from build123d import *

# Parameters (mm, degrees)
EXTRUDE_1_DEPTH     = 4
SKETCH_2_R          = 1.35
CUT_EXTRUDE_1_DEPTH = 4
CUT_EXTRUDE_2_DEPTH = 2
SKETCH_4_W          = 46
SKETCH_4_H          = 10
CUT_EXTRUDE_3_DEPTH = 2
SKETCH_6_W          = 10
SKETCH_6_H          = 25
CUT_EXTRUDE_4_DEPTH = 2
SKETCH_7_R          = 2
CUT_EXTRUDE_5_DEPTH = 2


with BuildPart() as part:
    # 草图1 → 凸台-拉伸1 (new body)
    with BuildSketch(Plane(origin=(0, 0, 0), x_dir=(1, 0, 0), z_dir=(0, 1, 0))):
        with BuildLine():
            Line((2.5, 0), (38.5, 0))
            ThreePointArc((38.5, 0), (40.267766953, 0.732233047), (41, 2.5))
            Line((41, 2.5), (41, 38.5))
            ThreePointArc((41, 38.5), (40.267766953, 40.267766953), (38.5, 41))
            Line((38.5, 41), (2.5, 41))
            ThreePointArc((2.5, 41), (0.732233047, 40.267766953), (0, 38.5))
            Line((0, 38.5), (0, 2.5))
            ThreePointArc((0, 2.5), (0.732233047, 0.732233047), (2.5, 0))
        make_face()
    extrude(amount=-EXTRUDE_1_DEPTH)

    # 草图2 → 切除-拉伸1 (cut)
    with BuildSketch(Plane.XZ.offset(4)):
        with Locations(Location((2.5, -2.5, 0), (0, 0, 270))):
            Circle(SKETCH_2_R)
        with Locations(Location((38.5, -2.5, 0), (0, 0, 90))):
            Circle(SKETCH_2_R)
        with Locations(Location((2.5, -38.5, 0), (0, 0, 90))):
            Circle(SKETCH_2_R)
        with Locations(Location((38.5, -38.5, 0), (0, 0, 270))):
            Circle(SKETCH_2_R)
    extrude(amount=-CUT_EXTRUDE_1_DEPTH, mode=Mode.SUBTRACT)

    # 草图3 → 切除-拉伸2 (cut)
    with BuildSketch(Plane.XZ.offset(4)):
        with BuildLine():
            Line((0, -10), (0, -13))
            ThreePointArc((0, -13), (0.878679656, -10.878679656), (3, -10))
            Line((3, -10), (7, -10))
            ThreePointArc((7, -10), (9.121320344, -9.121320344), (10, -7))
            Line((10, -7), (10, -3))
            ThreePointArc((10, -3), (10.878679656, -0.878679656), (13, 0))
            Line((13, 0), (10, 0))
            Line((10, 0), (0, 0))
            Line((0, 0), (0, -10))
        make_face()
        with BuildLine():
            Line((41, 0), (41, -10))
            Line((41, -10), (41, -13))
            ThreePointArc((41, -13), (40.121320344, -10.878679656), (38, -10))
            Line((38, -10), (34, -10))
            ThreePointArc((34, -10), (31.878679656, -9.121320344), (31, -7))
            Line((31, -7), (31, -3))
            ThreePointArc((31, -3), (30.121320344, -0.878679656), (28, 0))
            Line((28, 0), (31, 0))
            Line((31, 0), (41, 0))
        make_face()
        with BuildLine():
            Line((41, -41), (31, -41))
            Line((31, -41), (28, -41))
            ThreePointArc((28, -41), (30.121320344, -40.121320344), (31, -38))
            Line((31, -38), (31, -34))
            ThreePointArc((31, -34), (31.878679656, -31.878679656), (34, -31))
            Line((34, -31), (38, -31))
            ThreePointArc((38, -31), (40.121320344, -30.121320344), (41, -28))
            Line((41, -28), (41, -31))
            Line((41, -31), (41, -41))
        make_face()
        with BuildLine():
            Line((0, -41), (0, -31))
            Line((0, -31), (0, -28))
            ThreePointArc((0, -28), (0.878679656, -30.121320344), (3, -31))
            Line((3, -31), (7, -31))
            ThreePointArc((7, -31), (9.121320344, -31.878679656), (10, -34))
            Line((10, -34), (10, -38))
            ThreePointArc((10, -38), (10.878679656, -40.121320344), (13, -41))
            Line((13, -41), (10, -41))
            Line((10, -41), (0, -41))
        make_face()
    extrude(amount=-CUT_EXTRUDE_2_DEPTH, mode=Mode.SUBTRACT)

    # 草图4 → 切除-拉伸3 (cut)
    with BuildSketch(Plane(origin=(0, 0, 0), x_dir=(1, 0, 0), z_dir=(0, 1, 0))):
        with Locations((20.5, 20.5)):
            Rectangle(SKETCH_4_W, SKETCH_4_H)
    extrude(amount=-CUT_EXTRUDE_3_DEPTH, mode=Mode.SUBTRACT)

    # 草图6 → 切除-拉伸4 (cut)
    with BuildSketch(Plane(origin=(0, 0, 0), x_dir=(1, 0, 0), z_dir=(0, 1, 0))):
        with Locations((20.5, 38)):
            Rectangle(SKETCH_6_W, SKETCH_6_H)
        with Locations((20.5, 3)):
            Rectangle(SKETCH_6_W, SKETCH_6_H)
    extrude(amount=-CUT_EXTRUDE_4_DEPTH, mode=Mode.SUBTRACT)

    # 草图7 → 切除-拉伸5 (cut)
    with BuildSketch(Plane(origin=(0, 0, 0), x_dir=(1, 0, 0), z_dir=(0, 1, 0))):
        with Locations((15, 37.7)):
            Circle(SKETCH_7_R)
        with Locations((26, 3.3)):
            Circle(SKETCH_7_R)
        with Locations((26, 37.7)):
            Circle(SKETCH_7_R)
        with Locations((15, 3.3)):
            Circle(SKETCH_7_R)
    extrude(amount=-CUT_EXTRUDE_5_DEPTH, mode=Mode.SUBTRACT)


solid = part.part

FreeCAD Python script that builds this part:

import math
import FreeCAD as App
import Part
import Sketcher

V = App.Vector
Q = App.Units.Quantity

doc = App.newDocument("Part")
body = doc.addObject("PartDesign::Body", "Body")

sketch1 = body.newObject("Sketcher::SketchObject", "Sketch")
sketch1.AttachmentSupport = (doc.getObject("XZ_Plane"), [""])
sketch1.MapMode = "FlatFace"
sketch1.addGeometry([
    Part.LineSegment(V(2.5, 0, 0), V(38.5, 0, 0)),
    Part.ArcOfCircle(Part.Circle(V(38.5, -2.5, 0), V(0, 0, 1), 2.5), math.radians(0), math.radians(90)),
    Part.LineSegment(V(41, -2.5, 0), V(41, -38.5, 0)),
    Part.ArcOfCircle(Part.Circle(V(38.5, -38.5, 0), V(0, 0, 1), 2.5), math.radians(-90), math.radians(0)),
    Part.LineSegment(V(38.5, -41, 0), V(2.5, -41, 0)),
    Part.ArcOfCircle(Part.Circle(V(2.5, -38.5, 0), V(0, 0, 1), 2.5), math.radians(180), math.radians(270)),
    Part.LineSegment(V(0, -38.5, 0), V(0, -2.5, 0)),
    Part.ArcOfCircle(Part.Circle(V(2.5, -2.5, 0), V(0, 0, 1), 2.5), math.radians(90), math.radians(180)),
], False)
sketch1.addConstraint([
    Sketcher.Constraint("Tangent", 0, 2, 1, 2),
    Sketcher.Constraint("Tangent", 1, 1, 2, 1),
    Sketcher.Constraint("Tangent", 2, 2, 3, 2),
    Sketcher.Constraint("Tangent", 3, 1, 4, 1),
    Sketcher.Constraint("Tangent", 4, 2, 5, 2),
    Sketcher.Constraint("Tangent", 5, 1, 6, 1),
    Sketcher.Constraint("Tangent", 6, 2, 7, 2),
    Sketcher.Constraint("Tangent", 7, 1, 0, 1),
    Sketcher.Constraint("Horizontal", 0),
    Sketcher.Constraint("Vertical", 2),
    Sketcher.Constraint("Horizontal", 4),
    Sketcher.Constraint("Vertical", 6),
    Sketcher.Constraint("Equal", 1, 3),
    Sketcher.Constraint("Equal", 3, 5),
    Sketcher.Constraint("Equal", 5, 7),
    Sketcher.Constraint("PointOnObject", 0, 2, -1),
    Sketcher.Constraint("PointOnObject", 5, 1, -2),
    Sketcher.Constraint("Equal", 4, 2),
    Sketcher.Constraint("Radius", 1, Q("2.5 mm")),
    Sketcher.Constraint("DistanceX", 0, 1, 0, 2, Q("36 mm")),
])
pad1 = body.newObject("PartDesign::Pad", "Pad")
pad1.Profile = sketch1
pad1.Length = 4

sketch2 = body.newObject("Sketcher::SketchObject", "Sketch001")
sketch2.AttachmentSupport = (doc.getObject("XZ_Plane"), [""])
sketch2.MapMode = "FlatFace"
sketch2.AttachmentOffset = App.Placement(V(0, 0, 4), App.Rotation())
sketch2.addGeometry([
    Part.Circle(V(2.5, -2.5, 0), V(0, 0, 1), 1.4),
    Part.Circle(V(38.5, -2.5, 0), V(0, 0, 1), 1.4),
    Part.Circle(V(2.5, -38.5, 0), V(0, 0, 1), 1.4),
    Part.Circle(V(38.5, -38.5, 0), V(0, 0, 1), 1.4),
], False)
sketch2.addConstraint([
    Sketcher.Constraint("Equal", 0, 1),
    Sketcher.Constraint("Equal", 1, 2),
    Sketcher.Constraint("Equal", 2, 3),
    Sketcher.Constraint("Horizontal", 0, 3, 1, 3),
    Sketcher.Constraint("Horizontal", 2, 3, 3, 3),
    Sketcher.Constraint("Vertical", 0, 3, 2, 3),
    Sketcher.Constraint("Vertical", 1, 3, 3, 3),
    Sketcher.Constraint("Diameter", 0, Q("2.7 mm")),
    Sketcher.Constraint("DistanceX", 0, 3, 1, 3, Q("36 mm")),
    Sketcher.Constraint("DistanceY", 2, 3, 0, 3, Q("36 mm")),
    Sketcher.Constraint("DistanceX", -1, 1, 0, 3, Q("2.5 mm")),
    Sketcher.Constraint("DistanceY", 0, 3, -1, 1, Q("2.5 mm")),
])
pocket1 = body.newObject("PartDesign::Pocket", "Pocket")
pocket1.Profile = sketch2
pocket1.Length = 4

sketch3 = body.newObject("Sketcher::SketchObject", "Sketch002")
sketch3.AttachmentSupport = (doc.getObject("XZ_Plane"), [""])
sketch3.MapMode = "FlatFace"
sketch3.AttachmentOffset = App.Placement(V(0, 0, 4), App.Rotation())
sketch3.addGeometry([
    Part.ArcOfCircle(Part.Circle(V(3, -13, 0), V(0, 0, 1), 3), math.radians(90), math.radians(180)),
    Part.LineSegment(V(3, -10, 0), V(7, -10, 0)),
    Part.ArcOfCircle(Part.Circle(V(7, -7, 0), V(0, 0, 1), 3), math.radians(-90), math.radians(0)),
    Part.LineSegment(V(10, -7, 0), V(10, -3, 0)),
    Part.ArcOfCircle(Part.Circle(V(13, -3, 0), V(0, 0, 1), 3), math.radians(90), math.radians(180)),
    Part.LineSegment(V(13, 0, 0), V(0, 0, 0)),
    Part.LineSegment(V(0, 0, 0), V(0, -13, 0)),
    Part.LineSegment(V(41, -13, 0), V(41, 0, 0)),
    Part.LineSegment(V(41, 0, 0), V(28, 0, 0)),
    Part.ArcOfCircle(Part.Circle(V(28, -3, 0), V(0, 0, 1), 3), math.radians(0), math.radians(90)),
    Part.LineSegment(V(31, -3, 0), V(31, -7, 0)),
    Part.ArcOfCircle(Part.Circle(V(34, -7, 0), V(0, 0, 1), 3), math.radians(180), math.radians(270)),
    Part.LineSegment(V(34, -10, 0), V(38, -10, 0)),
    Part.ArcOfCircle(Part.Circle(V(38, -13, 0), V(0, 0, 1), 3), math.radians(0), math.radians(90)),
    Part.LineSegment(V(28, -41, 0), V(41, -41, 0)),
    Part.LineSegment(V(41, -41, 0), V(41, -28, 0)),
    Part.ArcOfCircle(Part.Circle(V(38, -28, 0), V(0, 0, 1), 3), math.radians(-90), math.radians(0)),
    Part.LineSegment(V(38, -31, 0), V(34, -31, 0)),
    Part.ArcOfCircle(Part.Circle(V(34, -34, 0), V(0, 0, 1), 3), math.radians(90), math.radians(180)),
    Part.LineSegment(V(31, -34, 0), V(31, -38, 0)),
    Part.ArcOfCircle(Part.Circle(V(28, -38, 0), V(0, 0, 1), 3), math.radians(-90), math.radians(0)),
    Part.LineSegment(V(0, -28, 0), V(0, -41, 0)),
    Part.LineSegment(V(0, -41, 0), V(13, -41, 0)),
    Part.ArcOfCircle(Part.Circle(V(13, -38, 0), V(0, 0, 1), 3), math.radians(180), math.radians(270)),
    Part.LineSegment(V(10, -38, 0), V(10, -34, 0)),
    Part.ArcOfCircle(Part.Circle(V(7, -34, 0), V(0, 0, 1), 3), math.radians(0), math.radians(90)),
    Part.LineSegment(V(7, -31, 0), V(3, -31, 0)),
    Part.ArcOfCircle(Part.Circle(V(3, -28, 0), V(0, 0, 1), 3), math.radians(180), math.radians(270)),
], False)
sketch3.addConstraint([
    Sketcher.Constraint("Tangent", 0, 1, 1, 1),
    Sketcher.Constraint("Tangent", 1, 2, 2, 1),
    Sketcher.Constraint("Tangent", 2, 2, 3, 1),
    Sketcher.Constraint("Tangent", 3, 2, 4, 2),
    Sketcher.Constraint("Tangent", 4, 1, 5, 1),
    Sketcher.Constraint("Coincident", 5, 2, 6, 1),
    Sketcher.Constraint("Tangent", 6, 2, 0, 2),
    Sketcher.Constraint("Coincident", 7, 2, 8, 1),
    Sketcher.Constraint("Tangent", 8, 2, 9, 2),
    Sketcher.Constraint("Tangent", 9, 1, 10, 1),
    Sketcher.Constraint("Tangent", 10, 2, 11, 1),
    Sketcher.Constraint("Tangent", 11, 2, 12, 1),
    Sketcher.Constraint("Tangent", 12, 2, 13, 2),
    Sketcher.Constraint("Tangent", 13, 1, 7, 1),
    Sketcher.Constraint("Coincident", 14, 2, 15, 1),
    Sketcher.Constraint("Tangent", 15, 2, 16, 2),
    Sketcher.Constraint("Tangent", 16, 1, 17, 1),
    Sketcher.Constraint("Tangent", 17, 2, 18, 1),
    Sketcher.Constraint("Tangent", 18, 2, 19, 1),
    Sketcher.Constraint("Tangent", 19, 2, 20, 2),
    Sketcher.Constraint("Tangent", 20, 1, 14, 1),
    Sketcher.Constraint("Coincident", 21, 2, 22, 1),
    Sketcher.Constraint("Tangent", 22, 2, 23, 2),
    Sketcher.Constraint("Tangent", 23, 1, 24, 1),
    Sketcher.Constraint("Tangent", 24, 2, 25, 1),
    Sketcher.Constraint("Tangent", 25, 2, 26, 1),
    Sketcher.Constraint("Tangent", 26, 2, 27, 2),
    Sketcher.Constraint("Tangent", 27, 1, 21, 1),
    Sketcher.Constraint("Horizontal", 1),
    Sketcher.Constraint("Vertical", 3),
    Sketcher.Constraint("Horizontal", 5),
    Sketcher.Constraint("Vertical", 6),
    Sketcher.Constraint("Vertical", 7),
    Sketcher.Constraint("Horizontal", 8),
    Sketcher.Constraint("Vertical", 10),
    Sketcher.Constraint("Horizontal", 12),
    Sketcher.Constraint("Horizontal", 14),
    Sketcher.Constraint("Vertical", 15),
    Sketcher.Constraint("Horizontal", 17),
    Sketcher.Constraint("Vertical", 19),
    Sketcher.Constraint("Vertical", 21),
    Sketcher.Constraint("Horizontal", 22),
    Sketcher.Constraint("Vertical", 24),
    Sketcher.Constraint("Horizontal", 26),
    Sketcher.Constraint("Coincident", 5, 2, -1, 1),
    Sketcher.Constraint("Equal", 0, 2),
    Sketcher.Constraint("Equal", 2, 4),
    Sketcher.Constraint("Equal", 4, 9),
    Sketcher.Constraint("Equal", 9, 11),
    Sketcher.Constraint("Equal", 11, 13),
    Sketcher.Constraint("Equal", 13, 16),
    Sketcher.Constraint("Equal", 16, 18),
    Sketcher.Constraint("Equal", 18, 20),
    Sketcher.Constraint("Equal", 20, 23),
    Sketcher.Constraint("Equal", 23, 25),
    Sketcher.Constraint("Equal", 25, 27),
    Sketcher.Constraint("PointOnObject", 7, 2, -1),
    Sketcher.Constraint("PointOnObject", 21, 2, -2),
    Sketcher.Constraint("Horizontal", 2, 3, 11, 3),
    Sketcher.Constraint("Horizontal", 20, 3, 23, 3),
    Sketcher.Constraint("Horizontal", 18, 3, 25, 3),
    Sketcher.Constraint("Vertical", 13, 3, 16, 3),
    Sketcher.Constraint("Vertical", 11, 3, 18, 3),
    Sketcher.Constraint("Vertical", 4, 3, 23, 3),
    Sketcher.Constraint("Equal", 5, 8),
    Sketcher.Constraint("Equal", 26, 3),
    Sketcher.Constraint("Equal", 7, 15),
    Sketcher.Constraint("Radius", 0, Q("3 mm")),
    Sketcher.Constraint("DistanceX", 1, 1, 1, 2, Q("4 mm")),
    Sketcher.Constraint("DistanceX", -1, 1, 9, 3, Q("28 mm")),
    Sketcher.Constraint("DistanceY", 16, 3, -1, 1, Q("28 mm")),
])
pocket2 = body.newObject("PartDesign::Pocket", "Pocket001")
pocket2.Profile = sketch3
pocket2.Length = 2

sketch4 = body.newObject("Sketcher::SketchObject", "Sketch003")
sketch4.AttachmentSupport = (doc.getObject("XZ_Plane"), [""])
sketch4.MapMode = "FlatFace"
sketch4.addGeometry([
    Part.LineSegment(V(-2, -26, 0), V(-2, -16, 0)),
    Part.LineSegment(V(-2, -16, 0), V(44, -16, 0)),
    Part.LineSegment(V(44, -16, 0), V(44, -26, 0)),
    Part.LineSegment(V(44, -26, 0), V(-2, -26, 0)),
], False)
sketch4.addConstraint([
    Sketcher.Constraint("Coincident", 0, 2, 1, 1),
    Sketcher.Constraint("Coincident", 1, 2, 2, 1),
    Sketcher.Constraint("Coincident", 2, 2, 3, 1),
    Sketcher.Constraint("Coincident", 3, 2, 0, 1),
    Sketcher.Constraint("Vertical", 0),
    Sketcher.Constraint("Horizontal", 1),
    Sketcher.Constraint("Vertical", 2),
    Sketcher.Constraint("Horizontal", 3),
    Sketcher.Constraint("DistanceX", 1, 1, 1, 2, Q("46 mm")),
    Sketcher.Constraint("DistanceY", 0, 1, 0, 2, Q("10 mm")),
    Sketcher.Constraint("DistanceX", 0, 2, -1, 1, Q("2.5 mm")),
    Sketcher.Constraint("DistanceY", 0, 2, -1, 1, Q("15.5 mm")),
])
pocket3 = body.newObject("PartDesign::Pocket", "Pocket002")
pocket3.Profile = sketch4
pocket3.Length = 2
pocket3.Reversed = True

sketch5 = body.newObject("Sketcher::SketchObject", "Sketch004")
sketch5.AttachmentSupport = (doc.getObject("XZ_Plane"), [""])
sketch5.MapMode = "FlatFace"
sketch5.addGeometry([
    Part.LineSegment(V(16, -50, 0), V(16, -26, 0)),
    Part.LineSegment(V(16, -26, 0), V(26, -26, 0)),
    Part.LineSegment(V(26, -26, 0), V(26, -50, 0)),
    Part.LineSegment(V(26, -50, 0), V(16, -50, 0)),
    Part.LineSegment(V(16, -16, 0), V(16, 10, 0)),
    Part.LineSegment(V(16, 10, 0), V(26, 10, 0)),
    Part.LineSegment(V(26, 10, 0), V(26, -16, 0)),
    Part.LineSegment(V(26, -16, 0), V(16, -16, 0)),
], False)
sketch5.addConstraint([
    Sketcher.Constraint("Coincident", 0, 2, 1, 1),
    Sketcher.Constraint("Coincident", 1, 2, 2, 1),
    Sketcher.Constraint("Coincident", 2, 2, 3, 1),
    Sketcher.Constraint("Coincident", 3, 2, 0, 1),
    Sketcher.Constraint("Coincident", 4, 2, 5, 1),
    Sketcher.Constraint("Coincident", 5, 2, 6, 1),
    Sketcher.Constraint("Coincident", 6, 2, 7, 1),
    Sketcher.Constraint("Coincident", 7, 2, 4, 1),
    Sketcher.Constraint("Vertical", 0),
    Sketcher.Constraint("Horizontal", 1),
    Sketcher.Constraint("Vertical", 2),
    Sketcher.Constraint("Horizontal", 3),
    Sketcher.Constraint("Vertical", 4),
    Sketcher.Constraint("Horizontal", 5),
    Sketcher.Constraint("Vertical", 6),
    Sketcher.Constraint("Horizontal", 7),
    Sketcher.Constraint("Vertical", 3, 2, 4, 2),
    Sketcher.Constraint("Vertical", 2, 2, 5, 2),
    Sketcher.Constraint("Equal", 2, 4),
    Sketcher.Constraint("DistanceX", 1, 1, 1, 2, Q("10 mm")),
    Sketcher.Constraint("DistanceY", 0, 1, 0, 2, Q("25 mm")),
    Sketcher.Constraint("DistanceY", 0, 2, 4, 2, Q("35 mm")),
    Sketcher.Constraint("DistanceX", -1, 1, 0, 2, Q("15.5 mm")),
    Sketcher.Constraint("DistanceY", 0, 2, -1, 1, Q("25.5 mm")),
])
pocket4 = body.newObject("PartDesign::Pocket", "Pocket003")
pocket4.Profile = sketch5
pocket4.Length = 2
pocket4.Reversed = True

sketch6 = body.newObject("Sketcher::SketchObject", "Sketch005")
sketch6.AttachmentSupport = (doc.getObject("XZ_Plane"), [""])
sketch6.MapMode = "FlatFace"
sketch6.addGeometry([
    Part.Circle(V(15, -37.7, 0), V(0, 0, 1), 2),
    Part.Circle(V(26, -3.3, 0), V(0, 0, 1), 2),
    Part.Circle(V(26, -37.7, 0), V(0, 0, 1), 2),
    Part.Circle(V(15, -3.3, 0), V(0, 0, 1), 2),
], False)
sketch6.addConstraint([
    Sketcher.Constraint("Equal", 0, 1),
    Sketcher.Constraint("Equal", 1, 2),
    Sketcher.Constraint("Equal", 2, 3),
    Sketcher.Constraint("Horizontal", 0, 3, 2, 3),
    Sketcher.Constraint("Horizontal", 1, 3, 3, 3),
    Sketcher.Constraint("Vertical", 1, 3, 2, 3),
    Sketcher.Constraint("Vertical", 0, 3, 3, 3),
    Sketcher.Constraint("Diameter", 0, Q("4 mm")),
    Sketcher.Constraint("DistanceX", -1, 1, 0, 3, Q("15 mm")),
    Sketcher.Constraint("DistanceX", -1, 1, 1, 3, Q("26 mm")),
    Sketcher.Constraint("DistanceY", 0, 3, -1, 1, Q("37.7 mm")),
    Sketcher.Constraint("DistanceY", 1, 3, -1, 1, Q("3.3 mm")),
])
pocket5 = body.newObject("PartDesign::Pocket", "Pocket004")
pocket5.Profile = sketch6
pocket5.Length = 2
pocket5.Reversed = True

doc.recompute()
